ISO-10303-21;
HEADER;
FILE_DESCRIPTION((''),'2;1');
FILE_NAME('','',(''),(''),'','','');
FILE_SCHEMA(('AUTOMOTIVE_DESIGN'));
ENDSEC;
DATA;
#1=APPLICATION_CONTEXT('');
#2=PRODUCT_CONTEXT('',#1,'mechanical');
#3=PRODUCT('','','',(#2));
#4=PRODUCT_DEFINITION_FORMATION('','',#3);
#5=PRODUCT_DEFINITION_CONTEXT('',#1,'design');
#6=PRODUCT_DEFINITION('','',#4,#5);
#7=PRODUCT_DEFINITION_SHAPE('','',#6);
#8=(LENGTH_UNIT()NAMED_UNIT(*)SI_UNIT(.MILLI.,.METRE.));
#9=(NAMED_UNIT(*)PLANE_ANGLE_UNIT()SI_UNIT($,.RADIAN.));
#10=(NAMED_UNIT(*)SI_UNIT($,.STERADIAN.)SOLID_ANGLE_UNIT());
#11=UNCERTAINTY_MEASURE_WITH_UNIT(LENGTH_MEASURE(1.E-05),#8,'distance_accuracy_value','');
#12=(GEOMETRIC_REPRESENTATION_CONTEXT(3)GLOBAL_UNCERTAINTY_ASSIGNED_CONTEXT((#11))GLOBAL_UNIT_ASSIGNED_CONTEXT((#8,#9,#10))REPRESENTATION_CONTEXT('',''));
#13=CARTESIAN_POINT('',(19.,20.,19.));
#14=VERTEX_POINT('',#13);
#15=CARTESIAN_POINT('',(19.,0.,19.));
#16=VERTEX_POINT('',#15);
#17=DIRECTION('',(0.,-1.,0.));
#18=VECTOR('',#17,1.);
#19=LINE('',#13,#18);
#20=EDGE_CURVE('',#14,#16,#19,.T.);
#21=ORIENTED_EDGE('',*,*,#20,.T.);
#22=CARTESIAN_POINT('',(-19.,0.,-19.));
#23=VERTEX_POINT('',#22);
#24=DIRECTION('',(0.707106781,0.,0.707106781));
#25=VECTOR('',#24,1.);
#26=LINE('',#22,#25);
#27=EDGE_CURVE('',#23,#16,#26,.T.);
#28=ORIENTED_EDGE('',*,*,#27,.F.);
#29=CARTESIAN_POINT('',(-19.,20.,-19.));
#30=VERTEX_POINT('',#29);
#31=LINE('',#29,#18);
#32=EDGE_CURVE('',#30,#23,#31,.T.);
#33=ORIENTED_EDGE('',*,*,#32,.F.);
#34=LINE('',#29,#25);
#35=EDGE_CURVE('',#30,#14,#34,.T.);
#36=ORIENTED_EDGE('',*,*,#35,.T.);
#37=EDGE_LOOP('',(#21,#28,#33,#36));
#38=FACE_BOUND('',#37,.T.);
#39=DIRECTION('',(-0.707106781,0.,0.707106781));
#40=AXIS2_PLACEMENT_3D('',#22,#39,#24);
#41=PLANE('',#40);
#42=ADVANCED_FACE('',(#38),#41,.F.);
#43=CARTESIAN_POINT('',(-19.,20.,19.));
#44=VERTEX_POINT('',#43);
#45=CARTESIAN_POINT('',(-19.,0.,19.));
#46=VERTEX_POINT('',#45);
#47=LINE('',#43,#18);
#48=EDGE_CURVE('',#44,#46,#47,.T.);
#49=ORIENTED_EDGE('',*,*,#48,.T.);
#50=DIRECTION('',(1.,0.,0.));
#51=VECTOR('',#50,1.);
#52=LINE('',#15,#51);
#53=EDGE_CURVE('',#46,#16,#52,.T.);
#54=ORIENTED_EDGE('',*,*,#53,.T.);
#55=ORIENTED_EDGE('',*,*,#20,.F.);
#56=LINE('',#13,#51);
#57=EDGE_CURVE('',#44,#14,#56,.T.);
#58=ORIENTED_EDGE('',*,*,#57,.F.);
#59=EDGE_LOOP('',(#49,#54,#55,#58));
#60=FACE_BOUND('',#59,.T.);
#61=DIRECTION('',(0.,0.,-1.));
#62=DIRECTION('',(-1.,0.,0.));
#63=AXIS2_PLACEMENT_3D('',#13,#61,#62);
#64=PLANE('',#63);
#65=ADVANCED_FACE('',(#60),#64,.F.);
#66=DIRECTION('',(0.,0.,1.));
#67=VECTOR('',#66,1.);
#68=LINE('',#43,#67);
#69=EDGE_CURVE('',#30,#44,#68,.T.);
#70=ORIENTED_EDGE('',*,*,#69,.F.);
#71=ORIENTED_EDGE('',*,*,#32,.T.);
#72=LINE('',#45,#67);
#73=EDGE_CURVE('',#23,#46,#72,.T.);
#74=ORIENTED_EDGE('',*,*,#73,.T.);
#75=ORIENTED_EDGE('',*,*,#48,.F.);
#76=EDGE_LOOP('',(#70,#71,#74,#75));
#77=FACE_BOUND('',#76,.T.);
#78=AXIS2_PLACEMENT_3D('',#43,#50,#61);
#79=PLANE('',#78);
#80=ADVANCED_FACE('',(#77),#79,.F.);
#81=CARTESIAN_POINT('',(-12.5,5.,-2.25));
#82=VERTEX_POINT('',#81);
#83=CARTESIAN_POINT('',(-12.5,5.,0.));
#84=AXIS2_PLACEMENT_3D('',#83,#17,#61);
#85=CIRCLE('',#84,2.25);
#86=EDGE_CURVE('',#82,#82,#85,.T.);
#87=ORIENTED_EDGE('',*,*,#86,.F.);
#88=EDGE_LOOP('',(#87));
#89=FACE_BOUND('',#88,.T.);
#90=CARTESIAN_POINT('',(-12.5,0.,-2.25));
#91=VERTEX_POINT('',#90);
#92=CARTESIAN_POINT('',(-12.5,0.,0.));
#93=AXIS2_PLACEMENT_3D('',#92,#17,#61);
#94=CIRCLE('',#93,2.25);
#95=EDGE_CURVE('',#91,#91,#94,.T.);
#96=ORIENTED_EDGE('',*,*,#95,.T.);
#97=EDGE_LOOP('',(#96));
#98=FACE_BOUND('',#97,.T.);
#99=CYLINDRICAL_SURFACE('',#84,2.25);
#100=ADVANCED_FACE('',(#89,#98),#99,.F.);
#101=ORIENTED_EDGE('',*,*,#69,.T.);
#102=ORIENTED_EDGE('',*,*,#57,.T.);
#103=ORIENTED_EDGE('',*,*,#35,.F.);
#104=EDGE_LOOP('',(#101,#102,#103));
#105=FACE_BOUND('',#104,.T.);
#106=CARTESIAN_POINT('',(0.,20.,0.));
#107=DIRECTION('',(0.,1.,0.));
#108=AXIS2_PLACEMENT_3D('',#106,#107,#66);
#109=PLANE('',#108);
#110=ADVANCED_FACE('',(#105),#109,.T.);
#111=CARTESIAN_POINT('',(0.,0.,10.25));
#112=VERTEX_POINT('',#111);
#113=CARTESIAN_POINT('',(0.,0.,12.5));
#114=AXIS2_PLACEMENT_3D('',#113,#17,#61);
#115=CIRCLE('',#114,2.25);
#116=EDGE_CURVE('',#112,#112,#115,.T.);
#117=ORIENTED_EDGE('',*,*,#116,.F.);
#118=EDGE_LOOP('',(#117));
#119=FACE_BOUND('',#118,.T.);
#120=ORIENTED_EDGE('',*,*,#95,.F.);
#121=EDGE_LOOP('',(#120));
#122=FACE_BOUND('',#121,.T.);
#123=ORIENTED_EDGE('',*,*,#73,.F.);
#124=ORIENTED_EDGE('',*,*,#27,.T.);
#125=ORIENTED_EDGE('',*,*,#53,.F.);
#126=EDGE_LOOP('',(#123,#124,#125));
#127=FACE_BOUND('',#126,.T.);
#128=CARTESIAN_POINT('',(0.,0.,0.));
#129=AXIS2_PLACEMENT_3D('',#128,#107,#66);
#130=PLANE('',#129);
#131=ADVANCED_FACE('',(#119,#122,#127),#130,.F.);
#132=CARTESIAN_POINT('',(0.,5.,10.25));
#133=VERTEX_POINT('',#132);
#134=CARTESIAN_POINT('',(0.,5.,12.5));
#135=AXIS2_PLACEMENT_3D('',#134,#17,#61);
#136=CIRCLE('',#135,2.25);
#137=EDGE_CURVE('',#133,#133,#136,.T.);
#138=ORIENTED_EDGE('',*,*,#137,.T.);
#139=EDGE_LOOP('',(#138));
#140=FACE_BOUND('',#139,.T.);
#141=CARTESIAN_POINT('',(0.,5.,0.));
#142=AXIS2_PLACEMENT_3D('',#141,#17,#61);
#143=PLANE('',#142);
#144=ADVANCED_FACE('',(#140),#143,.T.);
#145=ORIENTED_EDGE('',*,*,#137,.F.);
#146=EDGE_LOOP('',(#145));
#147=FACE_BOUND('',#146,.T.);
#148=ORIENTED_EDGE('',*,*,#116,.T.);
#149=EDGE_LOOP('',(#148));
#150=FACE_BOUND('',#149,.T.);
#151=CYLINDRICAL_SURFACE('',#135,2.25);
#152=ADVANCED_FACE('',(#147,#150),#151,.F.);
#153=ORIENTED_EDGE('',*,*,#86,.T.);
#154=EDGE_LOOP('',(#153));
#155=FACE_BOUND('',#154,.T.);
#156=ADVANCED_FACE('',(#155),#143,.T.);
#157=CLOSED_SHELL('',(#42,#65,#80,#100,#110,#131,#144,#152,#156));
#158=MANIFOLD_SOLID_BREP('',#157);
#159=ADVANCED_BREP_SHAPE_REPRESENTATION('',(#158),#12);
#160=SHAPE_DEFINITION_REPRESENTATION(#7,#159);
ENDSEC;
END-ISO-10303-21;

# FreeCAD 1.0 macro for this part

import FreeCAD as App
import Part
import Sketcher


def add_polygon(sketch, points):
    """Adds a closed chain of lines whose ends are joined by coincident constraints."""
    first, n = sketch.GeometryCount, len(points)
    for a, b in zip(points, points[1:] + points[:1]):
        sketch.addGeometry(Part.LineSegment(App.Vector(*a, 0), App.Vector(*b, 0)), False)
    for i in range(n):
        sketch.addConstraint(Sketcher.Constraint("Coincident", first + i, 2, first + (i + 1) % n, 1))

doc = App.newDocument("Part")
body = doc.addObject("PartDesign::Body", "Body")

# Sketch on XZ plane
sketch1 = doc.addObject("Sketcher::SketchObject", "Sketch")
body.addObject(sketch1)
sketch1.AttachmentSupport = (doc.XZ_Plane, [""])
sketch1.MapMode = "FlatFace"
add_polygon(sketch1, [(-19, -19), (-19, 19), (19, 19), (19, -19)])  # lines 0-3
sketch1.addConstraint([
    Sketcher.Constraint("Vertical", 0),
    Sketcher.Constraint("Horizontal", 1),
    Sketcher.Constraint("Vertical", 2),
    Sketcher.Constraint("Horizontal", 3),
    Sketcher.Constraint("Symmetric", 0, 2, 2, 2, -1, 1),
    Sketcher.Constraint("Equal", 3, 0),
    Sketcher.Constraint("DistanceX", 1, 1, 1, 2, 38.0),
])
pad1 = doc.addObject("PartDesign::Pad", "Pad")
body.addObject(pad1)
pad1.Profile = sketch1
pad1.Length = 20
pad1.Reversed = True

# Sketch on XZ plane
sketch2 = doc.addObject("Sketcher::SketchObject", "Sketch001")
body.addObject(sketch2)
sketch2.AttachmentSupport = (doc.XZ_Plane, [""])
sketch2.MapMode = "FlatFace"
sketch2.AttachmentOffset = App.Placement(App.Vector(0, 0, -20), App.Rotation())
add_polygon(sketch2, [(-19, -19), (19, 19), (19, -19)])  # lines 0-2
sketch2.addConstraint([
    Sketcher.Constraint("Vertical", 1),
    Sketcher.Constraint("Horizontal", 2),
    Sketcher.Constraint("Symmetric", 0, 2, 2, 2, -1, 1),
    Sketcher.Constraint("Equal", 2, 1),
    Sketcher.Constraint("DistanceX", 2, 2, 2, 1, 38.0),
])
pocket1 = doc.addObject("PartDesign::Pocket", "Pocket")
body.addObject(pocket1)
pocket1.Profile = sketch2
pocket1.Length = 20
pocket1.Reversed = True

# Sketch on XZ plane
sketch3 = doc.addObject("Sketcher::SketchObject", "Sketch002")
body.addObject(sketch3)
sketch3.AttachmentSupport = (doc.XZ_Plane, [""])
sketch3.MapMode = "FlatFace"
sketch3.addGeometry([
    Part.Circle(App.Vector(-12.5, 0, 0), App.Vector(0, 0, 1), 2.2),
    Part.Circle(App.Vector(0, 12.5, 0), App.Vector(0, 0, 1), 2.2),
], False)
sketch3.addConstraint([
    Sketcher.Constraint("Equal", 0, 1),
    Sketcher.Constraint("PointOnObject", 0, 3, -1),
    Sketcher.Constraint("PointOnObject", 1, 3, -2),
    Sketcher.Constraint("Diameter", 0, 4.5),
    Sketcher.Constraint("DistanceX", 0, 3, -1, 1, 12.5),
    Sketcher.Constraint("DistanceY", -1, 1, 1, 3, 12.5),
])
pocket2 = doc.addObject("PartDesign::Pocket", "Pocket001")
body.addObject(pocket2)
pocket2.Profile = sketch3
pocket2.Length = 5

doc.recompute()
